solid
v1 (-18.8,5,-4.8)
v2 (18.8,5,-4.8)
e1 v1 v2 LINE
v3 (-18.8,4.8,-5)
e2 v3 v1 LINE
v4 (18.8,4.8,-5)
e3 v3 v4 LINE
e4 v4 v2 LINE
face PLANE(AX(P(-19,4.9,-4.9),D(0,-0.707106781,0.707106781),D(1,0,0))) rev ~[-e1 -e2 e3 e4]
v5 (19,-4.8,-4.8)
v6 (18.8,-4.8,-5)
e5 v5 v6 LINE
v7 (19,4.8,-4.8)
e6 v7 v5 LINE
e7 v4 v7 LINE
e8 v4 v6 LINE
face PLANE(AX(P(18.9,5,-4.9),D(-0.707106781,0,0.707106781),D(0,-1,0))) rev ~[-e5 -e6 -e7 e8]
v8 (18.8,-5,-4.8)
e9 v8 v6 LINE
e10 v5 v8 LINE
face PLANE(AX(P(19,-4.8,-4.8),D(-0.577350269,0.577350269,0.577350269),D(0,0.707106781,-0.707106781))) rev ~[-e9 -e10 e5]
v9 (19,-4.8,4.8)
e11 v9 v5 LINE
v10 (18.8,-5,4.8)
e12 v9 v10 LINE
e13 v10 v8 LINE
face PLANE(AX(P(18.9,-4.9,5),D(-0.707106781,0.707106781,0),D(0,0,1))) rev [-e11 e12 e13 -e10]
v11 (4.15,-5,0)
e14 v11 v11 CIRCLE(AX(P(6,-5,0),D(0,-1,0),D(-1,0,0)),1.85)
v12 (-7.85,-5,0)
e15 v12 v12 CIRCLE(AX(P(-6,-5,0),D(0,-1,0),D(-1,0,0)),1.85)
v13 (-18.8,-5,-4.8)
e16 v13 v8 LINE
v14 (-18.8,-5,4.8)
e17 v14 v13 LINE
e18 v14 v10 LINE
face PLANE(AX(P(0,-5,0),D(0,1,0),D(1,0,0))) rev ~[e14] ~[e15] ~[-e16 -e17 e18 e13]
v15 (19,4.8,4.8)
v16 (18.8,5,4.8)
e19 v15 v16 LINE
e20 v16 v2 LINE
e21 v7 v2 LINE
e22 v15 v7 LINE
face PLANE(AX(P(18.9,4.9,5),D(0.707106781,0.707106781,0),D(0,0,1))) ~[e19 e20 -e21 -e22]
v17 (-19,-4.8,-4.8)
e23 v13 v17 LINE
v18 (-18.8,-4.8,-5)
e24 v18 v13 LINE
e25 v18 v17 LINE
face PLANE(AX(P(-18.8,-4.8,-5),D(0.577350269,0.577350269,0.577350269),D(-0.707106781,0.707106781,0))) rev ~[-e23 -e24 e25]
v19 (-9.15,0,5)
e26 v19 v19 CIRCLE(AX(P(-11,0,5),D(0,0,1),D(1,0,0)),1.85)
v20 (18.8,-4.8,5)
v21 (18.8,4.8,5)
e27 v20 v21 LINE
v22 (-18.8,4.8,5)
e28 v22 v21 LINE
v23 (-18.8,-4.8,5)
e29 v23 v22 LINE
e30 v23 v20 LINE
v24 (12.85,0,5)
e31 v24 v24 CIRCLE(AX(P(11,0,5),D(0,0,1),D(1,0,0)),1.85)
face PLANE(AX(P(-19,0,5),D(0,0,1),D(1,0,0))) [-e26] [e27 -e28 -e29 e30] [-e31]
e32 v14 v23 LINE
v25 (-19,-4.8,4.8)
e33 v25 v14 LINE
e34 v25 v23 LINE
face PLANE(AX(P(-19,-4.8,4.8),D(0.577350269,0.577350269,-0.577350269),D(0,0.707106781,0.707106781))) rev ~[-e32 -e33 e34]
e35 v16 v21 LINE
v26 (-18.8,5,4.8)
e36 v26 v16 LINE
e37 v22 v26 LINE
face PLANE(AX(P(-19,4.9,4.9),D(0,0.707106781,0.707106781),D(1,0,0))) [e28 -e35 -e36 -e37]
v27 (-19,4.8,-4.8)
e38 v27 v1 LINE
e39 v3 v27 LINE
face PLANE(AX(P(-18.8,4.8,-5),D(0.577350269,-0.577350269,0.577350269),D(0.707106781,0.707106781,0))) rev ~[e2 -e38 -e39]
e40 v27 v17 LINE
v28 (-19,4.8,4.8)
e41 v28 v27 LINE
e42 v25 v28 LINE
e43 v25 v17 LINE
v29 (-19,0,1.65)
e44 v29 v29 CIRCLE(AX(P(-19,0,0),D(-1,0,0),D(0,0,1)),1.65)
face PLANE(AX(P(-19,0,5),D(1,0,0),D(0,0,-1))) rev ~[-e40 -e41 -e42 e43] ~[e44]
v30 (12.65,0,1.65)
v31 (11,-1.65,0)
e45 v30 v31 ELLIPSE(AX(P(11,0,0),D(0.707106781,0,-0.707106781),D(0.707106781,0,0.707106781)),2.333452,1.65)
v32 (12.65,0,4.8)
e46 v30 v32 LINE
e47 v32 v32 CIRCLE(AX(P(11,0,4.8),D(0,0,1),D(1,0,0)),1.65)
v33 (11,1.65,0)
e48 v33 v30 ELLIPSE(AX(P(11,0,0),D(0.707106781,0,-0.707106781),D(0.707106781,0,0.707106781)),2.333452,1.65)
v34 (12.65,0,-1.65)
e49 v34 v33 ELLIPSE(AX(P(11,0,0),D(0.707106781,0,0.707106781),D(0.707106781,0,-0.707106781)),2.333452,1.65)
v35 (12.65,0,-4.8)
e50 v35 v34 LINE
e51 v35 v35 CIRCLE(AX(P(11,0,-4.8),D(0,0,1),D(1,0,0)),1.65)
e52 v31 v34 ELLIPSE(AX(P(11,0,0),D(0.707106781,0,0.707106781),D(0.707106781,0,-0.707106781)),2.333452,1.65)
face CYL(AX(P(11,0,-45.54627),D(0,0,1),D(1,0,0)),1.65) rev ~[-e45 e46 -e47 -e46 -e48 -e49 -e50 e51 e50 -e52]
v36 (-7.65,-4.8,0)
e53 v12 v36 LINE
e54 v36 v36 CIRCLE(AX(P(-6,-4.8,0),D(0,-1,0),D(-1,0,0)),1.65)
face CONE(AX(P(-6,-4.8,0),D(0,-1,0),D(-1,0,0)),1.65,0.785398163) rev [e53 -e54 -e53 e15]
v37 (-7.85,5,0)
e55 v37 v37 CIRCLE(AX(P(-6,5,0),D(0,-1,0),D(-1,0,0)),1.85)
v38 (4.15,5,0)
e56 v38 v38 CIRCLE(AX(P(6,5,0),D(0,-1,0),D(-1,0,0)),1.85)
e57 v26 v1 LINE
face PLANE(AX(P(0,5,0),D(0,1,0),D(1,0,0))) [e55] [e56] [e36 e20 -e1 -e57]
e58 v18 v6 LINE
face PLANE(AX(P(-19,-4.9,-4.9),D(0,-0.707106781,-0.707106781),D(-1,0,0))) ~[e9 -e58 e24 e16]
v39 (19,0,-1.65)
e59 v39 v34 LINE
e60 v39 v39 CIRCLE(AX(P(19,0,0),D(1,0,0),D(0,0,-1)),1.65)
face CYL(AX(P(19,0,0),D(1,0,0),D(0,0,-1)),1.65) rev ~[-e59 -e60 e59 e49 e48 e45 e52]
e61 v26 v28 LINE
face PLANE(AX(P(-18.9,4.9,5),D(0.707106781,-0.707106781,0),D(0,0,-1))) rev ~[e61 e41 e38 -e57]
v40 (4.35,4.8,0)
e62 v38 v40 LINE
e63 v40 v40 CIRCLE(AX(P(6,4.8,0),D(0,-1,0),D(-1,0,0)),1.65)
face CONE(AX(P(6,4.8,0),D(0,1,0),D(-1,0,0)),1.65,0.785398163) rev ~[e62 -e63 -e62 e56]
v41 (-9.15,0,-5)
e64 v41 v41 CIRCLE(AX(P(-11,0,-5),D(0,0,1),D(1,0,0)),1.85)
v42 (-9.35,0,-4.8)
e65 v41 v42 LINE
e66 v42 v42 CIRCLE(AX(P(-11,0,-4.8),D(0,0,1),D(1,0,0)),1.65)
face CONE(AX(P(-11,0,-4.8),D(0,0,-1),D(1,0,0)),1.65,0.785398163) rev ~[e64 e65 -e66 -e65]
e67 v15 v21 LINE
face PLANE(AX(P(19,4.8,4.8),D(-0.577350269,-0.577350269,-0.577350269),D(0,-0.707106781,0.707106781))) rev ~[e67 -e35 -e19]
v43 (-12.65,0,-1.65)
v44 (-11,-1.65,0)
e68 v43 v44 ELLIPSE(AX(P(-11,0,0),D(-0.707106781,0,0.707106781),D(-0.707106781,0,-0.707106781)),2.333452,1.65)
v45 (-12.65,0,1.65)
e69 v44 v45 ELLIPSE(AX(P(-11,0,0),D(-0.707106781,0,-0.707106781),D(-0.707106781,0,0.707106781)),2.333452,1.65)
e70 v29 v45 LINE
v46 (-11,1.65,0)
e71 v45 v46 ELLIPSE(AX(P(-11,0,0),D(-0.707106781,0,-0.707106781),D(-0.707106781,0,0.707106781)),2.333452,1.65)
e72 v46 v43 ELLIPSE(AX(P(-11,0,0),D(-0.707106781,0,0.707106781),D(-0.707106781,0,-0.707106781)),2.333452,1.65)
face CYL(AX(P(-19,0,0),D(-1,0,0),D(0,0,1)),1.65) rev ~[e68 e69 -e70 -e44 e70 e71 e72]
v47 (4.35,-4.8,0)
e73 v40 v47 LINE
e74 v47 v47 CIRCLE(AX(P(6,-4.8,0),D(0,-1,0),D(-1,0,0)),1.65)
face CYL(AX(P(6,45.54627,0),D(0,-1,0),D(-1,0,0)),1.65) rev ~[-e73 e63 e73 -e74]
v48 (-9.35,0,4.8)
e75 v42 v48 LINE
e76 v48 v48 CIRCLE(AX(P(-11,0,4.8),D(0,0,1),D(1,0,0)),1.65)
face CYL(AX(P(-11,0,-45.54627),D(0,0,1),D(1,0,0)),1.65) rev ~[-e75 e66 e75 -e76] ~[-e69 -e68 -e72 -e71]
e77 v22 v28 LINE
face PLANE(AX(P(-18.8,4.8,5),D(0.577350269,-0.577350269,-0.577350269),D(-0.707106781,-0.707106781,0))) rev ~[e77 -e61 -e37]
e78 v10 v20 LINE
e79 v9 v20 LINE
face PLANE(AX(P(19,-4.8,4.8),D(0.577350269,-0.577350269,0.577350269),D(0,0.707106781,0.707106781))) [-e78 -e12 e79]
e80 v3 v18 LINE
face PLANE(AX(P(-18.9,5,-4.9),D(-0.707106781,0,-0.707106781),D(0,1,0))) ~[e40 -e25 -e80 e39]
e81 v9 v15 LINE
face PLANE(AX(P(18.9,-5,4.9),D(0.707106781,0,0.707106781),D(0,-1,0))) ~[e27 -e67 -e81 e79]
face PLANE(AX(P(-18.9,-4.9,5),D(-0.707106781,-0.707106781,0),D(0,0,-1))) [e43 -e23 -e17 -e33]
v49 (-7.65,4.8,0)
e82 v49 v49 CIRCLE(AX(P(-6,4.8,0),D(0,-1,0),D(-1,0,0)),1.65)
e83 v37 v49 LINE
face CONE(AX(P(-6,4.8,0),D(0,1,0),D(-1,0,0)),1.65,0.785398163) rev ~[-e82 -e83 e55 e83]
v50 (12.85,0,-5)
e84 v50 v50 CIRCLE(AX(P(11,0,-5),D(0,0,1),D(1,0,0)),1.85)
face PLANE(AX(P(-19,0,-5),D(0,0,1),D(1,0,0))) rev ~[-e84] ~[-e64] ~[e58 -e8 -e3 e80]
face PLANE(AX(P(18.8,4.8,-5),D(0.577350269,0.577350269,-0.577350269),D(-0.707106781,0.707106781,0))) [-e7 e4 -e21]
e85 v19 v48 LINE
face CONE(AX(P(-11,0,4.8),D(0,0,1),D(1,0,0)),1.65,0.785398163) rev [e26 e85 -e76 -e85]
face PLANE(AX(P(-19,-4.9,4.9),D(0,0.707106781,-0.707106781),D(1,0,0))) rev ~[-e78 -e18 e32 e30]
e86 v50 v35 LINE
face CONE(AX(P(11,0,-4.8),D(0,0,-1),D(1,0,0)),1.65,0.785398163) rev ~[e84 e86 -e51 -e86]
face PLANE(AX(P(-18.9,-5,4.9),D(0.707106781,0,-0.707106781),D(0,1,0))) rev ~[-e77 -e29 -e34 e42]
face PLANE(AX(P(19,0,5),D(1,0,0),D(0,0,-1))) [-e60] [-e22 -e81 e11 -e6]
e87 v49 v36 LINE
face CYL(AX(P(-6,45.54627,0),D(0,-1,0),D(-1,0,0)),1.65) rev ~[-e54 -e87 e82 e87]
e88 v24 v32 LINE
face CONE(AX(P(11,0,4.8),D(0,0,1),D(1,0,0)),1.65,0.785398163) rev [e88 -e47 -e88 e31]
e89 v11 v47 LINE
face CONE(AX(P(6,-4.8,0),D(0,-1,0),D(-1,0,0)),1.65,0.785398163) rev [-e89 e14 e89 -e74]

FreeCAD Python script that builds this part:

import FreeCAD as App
import Part
import Sketcher
Q = App.Units.Quantity

doc = App.newDocument("Part")
body = doc.addObject("PartDesign::Body", "Body")

# Sketch on XZ plane
sketch1 = body.newObject("Sketcher::SketchObject", "Sketch")
sketch1.AttachmentSupport = (doc.getObject("XZ_Plane"), [""])
sketch1.MapMode = "FlatFace"
sketch1.addGeometry(Part.LineSegment(App.Vector(-19, -5, 0), App.Vector(-19, 5, 0)), False)
sketch1.addGeometry(Part.LineSegment(App.Vector(-19, 5, 0), App.Vector(19, 5, 0)), False)
sketch1.addGeometry(Part.LineSegment(App.Vector(19, 5, 0), App.Vector(19, -5, 0)), False)
sketch1.addGeometry(Part.LineSegment(App.Vector(19, -5, 0), App.Vector(-19, -5, 0)), False)
sketch1.addConstraint(Sketcher.Constraint("Coincident", 0, 2, 1, 1))
sketch1.addConstraint(Sketcher.Constraint("Coincident", 1, 2, 2, 1))
sketch1.addConstraint(Sketcher.Constraint("Coincident", 2, 2, 3, 1))
sketch1.addConstraint(Sketcher.Constraint("Coincident", 3, 2, 0, 1))
sketch1.addConstraint(Sketcher.Constraint("Vertical", 0))
sketch1.addConstraint(Sketcher.Constraint("Horizontal", 1))
sketch1.addConstraint(Sketcher.Constraint("Vertical", 2))
sketch1.addConstraint(Sketcher.Constraint("Horizontal", 3))
sketch1.addConstraint(Sketcher.Constraint("Symmetric", 0, 2, 2, 2, -1, 1))
sketch1.addConstraint(Sketcher.Constraint("DistanceX", 1, 1, 1, 2, Q("38 mm")))
sketch1.addConstraint(Sketcher.Constraint("DistanceY", 0, 1, 0, 2, Q("10 mm")))
pad1 = body.newObject("PartDesign::Pad", "Pad")
pad1.Profile = sketch1
pad1.Length = 10
pad1.Midplane = True

# Sketch on XZ plane
sketch2 = body.newObject("Sketcher::SketchObject", "Sketch001")
sketch2.AttachmentSupport = (doc.getObject("XZ_Plane"), [""])
sketch2.MapMode = "FlatFace"
sketch2.AttachmentOffset = App.Placement(App.Vector(0, 0, -5), App.Rotation())
sketch2.addGeometry(Part.Circle(App.Vector(-6, 0, 0), App.Vector(0, 0, 1), 1.6), False)
sketch2.addGeometry(Part.Circle(App.Vector(6, 0, 0), App.Vector(0, 0, 1), 1.6), False)
sketch2.addConstraint(Sketcher.Constraint("Equal", 0, 1))
sketch2.addConstraint(Sketcher.Constraint("Symmetric", 0, 3, 1, 3, -1, 1))
sketch2.addConstraint(Sketcher.Constraint("PointOnObject", 0, 3, -1))
sketch2.addConstraint(Sketcher.Constraint("Diameter", 0, Q("3.3 mm")))
sketch2.addConstraint(Sketcher.Constraint("DistanceX", 0, 3, -1, 1, Q("6 mm")))
doc.recompute()
hole = body.newObject("PartDesign::Hole", "Hole")
hole.Profile = sketch2
hole.ThreadType = "None"
hole.Diameter = 3.3
hole.DepthType = "ThroughAll"
hole.Reversed = True

# Sketch on XY plane
sketch3 = body.newObject("Sketcher::SketchObject", "Sketch002")
sketch3.AttachmentSupport = (doc.getObject("XY_Plane"), [""])
sketch3.MapMode = "FlatFace"
sketch3.AttachmentOffset = App.Placement(App.Vector(0, 0, -5), App.Rotation())
sketch3.addGeometry(Part.Circle(App.Vector(11, 0, 0), App.Vector(0, 0, 1), 1.6), False)
sketch3.addGeometry(Part.Circle(App.Vector(-11, 0, 0), App.Vector(0, 0, 1), 1.6), False)
sketch3.addConstraint(Sketcher.Constraint("Equal", 0, 1))
sketch3.addConstraint(Sketcher.Constraint("Symmetric", 0, 3, 1, 3, -1, 1))
sketch3.addConstraint(Sketcher.Constraint("PointOnObject", 0, 3, -1))
sketch3.addConstraint(Sketcher.Constraint("Diameter", 0, Q("3.3 mm")))
sketch3.addConstraint(Sketcher.Constraint("DistanceX", -1, 1, 0, 3, Q("11 mm")))
doc.recompute()
hole2 = body.newObject("PartDesign::Hole", "Hole001")
hole2.Profile = sketch3
hole2.ThreadType = "None"
hole2.Diameter = 3.3
hole2.DepthType = "ThroughAll"
hole2.Reversed = True
doc.recompute()

chamfer = body.newObject("PartDesign::Chamfer", "Chamfer")
chamfer.Base = (hole2, ["Edge1"])
chamfer.UseAllEdges = True
chamfer.Size = 0.2

# Sketch on YZ plane
sketch4 = body.newObject("Sketcher::SketchObject", "Sketch003")
sketch4.AttachmentSupport = (doc.getObject("YZ_Plane"), [""])
sketch4.MapMode = "FlatFace"
sketch4.AttachmentOffset = App.Placement(App.Vector(0, 0, -19), App.Rotation())
sketch4.addGeometry(Part.Circle(App.Vector(0, 0, 0), App.Vector(0, 0, 1), 1.6), False)
sketch4.addConstraint(Sketcher.Constraint("Coincident", 0, 3, -1, 1))
sketch4.addConstraint(Sketcher.Constraint("Diameter", 0, Q("3.3 mm")))
pocket1 = body.newObject("PartDesign::Pocket", "Pocket")
pocket1.Profile = sketch4
pocket1.Length = 8
pocket1.Reversed = True

# Sketch on YZ plane
sketch5 = body.newObject("Sketcher::SketchObject", "Sketch004")
sketch5.AttachmentSupport = (doc.getObject("YZ_Plane"), [""])
sketch5.MapMode = "FlatFace"
sketch5.AttachmentOffset = App.Placement(App.Vector(0, 0, 19), App.Rotation())
sketch5.addGeometry(Part.Circle(App.Vector(0, 0, 0), App.Vector(0, 0, 1), 1.6), False)
sketch5.addConstraint(Sketcher.Constraint("Coincident", 0, 3, -1, 1))
sketch5.addConstraint(Sketcher.Constraint("Diameter", 0, Q("3.3 mm")))
pocket2 = body.newObject("PartDesign::Pocket", "Pocket001")
pocket2.Profile = sketch5
pocket2.Type = "UpToFirst"

doc.recompute()
